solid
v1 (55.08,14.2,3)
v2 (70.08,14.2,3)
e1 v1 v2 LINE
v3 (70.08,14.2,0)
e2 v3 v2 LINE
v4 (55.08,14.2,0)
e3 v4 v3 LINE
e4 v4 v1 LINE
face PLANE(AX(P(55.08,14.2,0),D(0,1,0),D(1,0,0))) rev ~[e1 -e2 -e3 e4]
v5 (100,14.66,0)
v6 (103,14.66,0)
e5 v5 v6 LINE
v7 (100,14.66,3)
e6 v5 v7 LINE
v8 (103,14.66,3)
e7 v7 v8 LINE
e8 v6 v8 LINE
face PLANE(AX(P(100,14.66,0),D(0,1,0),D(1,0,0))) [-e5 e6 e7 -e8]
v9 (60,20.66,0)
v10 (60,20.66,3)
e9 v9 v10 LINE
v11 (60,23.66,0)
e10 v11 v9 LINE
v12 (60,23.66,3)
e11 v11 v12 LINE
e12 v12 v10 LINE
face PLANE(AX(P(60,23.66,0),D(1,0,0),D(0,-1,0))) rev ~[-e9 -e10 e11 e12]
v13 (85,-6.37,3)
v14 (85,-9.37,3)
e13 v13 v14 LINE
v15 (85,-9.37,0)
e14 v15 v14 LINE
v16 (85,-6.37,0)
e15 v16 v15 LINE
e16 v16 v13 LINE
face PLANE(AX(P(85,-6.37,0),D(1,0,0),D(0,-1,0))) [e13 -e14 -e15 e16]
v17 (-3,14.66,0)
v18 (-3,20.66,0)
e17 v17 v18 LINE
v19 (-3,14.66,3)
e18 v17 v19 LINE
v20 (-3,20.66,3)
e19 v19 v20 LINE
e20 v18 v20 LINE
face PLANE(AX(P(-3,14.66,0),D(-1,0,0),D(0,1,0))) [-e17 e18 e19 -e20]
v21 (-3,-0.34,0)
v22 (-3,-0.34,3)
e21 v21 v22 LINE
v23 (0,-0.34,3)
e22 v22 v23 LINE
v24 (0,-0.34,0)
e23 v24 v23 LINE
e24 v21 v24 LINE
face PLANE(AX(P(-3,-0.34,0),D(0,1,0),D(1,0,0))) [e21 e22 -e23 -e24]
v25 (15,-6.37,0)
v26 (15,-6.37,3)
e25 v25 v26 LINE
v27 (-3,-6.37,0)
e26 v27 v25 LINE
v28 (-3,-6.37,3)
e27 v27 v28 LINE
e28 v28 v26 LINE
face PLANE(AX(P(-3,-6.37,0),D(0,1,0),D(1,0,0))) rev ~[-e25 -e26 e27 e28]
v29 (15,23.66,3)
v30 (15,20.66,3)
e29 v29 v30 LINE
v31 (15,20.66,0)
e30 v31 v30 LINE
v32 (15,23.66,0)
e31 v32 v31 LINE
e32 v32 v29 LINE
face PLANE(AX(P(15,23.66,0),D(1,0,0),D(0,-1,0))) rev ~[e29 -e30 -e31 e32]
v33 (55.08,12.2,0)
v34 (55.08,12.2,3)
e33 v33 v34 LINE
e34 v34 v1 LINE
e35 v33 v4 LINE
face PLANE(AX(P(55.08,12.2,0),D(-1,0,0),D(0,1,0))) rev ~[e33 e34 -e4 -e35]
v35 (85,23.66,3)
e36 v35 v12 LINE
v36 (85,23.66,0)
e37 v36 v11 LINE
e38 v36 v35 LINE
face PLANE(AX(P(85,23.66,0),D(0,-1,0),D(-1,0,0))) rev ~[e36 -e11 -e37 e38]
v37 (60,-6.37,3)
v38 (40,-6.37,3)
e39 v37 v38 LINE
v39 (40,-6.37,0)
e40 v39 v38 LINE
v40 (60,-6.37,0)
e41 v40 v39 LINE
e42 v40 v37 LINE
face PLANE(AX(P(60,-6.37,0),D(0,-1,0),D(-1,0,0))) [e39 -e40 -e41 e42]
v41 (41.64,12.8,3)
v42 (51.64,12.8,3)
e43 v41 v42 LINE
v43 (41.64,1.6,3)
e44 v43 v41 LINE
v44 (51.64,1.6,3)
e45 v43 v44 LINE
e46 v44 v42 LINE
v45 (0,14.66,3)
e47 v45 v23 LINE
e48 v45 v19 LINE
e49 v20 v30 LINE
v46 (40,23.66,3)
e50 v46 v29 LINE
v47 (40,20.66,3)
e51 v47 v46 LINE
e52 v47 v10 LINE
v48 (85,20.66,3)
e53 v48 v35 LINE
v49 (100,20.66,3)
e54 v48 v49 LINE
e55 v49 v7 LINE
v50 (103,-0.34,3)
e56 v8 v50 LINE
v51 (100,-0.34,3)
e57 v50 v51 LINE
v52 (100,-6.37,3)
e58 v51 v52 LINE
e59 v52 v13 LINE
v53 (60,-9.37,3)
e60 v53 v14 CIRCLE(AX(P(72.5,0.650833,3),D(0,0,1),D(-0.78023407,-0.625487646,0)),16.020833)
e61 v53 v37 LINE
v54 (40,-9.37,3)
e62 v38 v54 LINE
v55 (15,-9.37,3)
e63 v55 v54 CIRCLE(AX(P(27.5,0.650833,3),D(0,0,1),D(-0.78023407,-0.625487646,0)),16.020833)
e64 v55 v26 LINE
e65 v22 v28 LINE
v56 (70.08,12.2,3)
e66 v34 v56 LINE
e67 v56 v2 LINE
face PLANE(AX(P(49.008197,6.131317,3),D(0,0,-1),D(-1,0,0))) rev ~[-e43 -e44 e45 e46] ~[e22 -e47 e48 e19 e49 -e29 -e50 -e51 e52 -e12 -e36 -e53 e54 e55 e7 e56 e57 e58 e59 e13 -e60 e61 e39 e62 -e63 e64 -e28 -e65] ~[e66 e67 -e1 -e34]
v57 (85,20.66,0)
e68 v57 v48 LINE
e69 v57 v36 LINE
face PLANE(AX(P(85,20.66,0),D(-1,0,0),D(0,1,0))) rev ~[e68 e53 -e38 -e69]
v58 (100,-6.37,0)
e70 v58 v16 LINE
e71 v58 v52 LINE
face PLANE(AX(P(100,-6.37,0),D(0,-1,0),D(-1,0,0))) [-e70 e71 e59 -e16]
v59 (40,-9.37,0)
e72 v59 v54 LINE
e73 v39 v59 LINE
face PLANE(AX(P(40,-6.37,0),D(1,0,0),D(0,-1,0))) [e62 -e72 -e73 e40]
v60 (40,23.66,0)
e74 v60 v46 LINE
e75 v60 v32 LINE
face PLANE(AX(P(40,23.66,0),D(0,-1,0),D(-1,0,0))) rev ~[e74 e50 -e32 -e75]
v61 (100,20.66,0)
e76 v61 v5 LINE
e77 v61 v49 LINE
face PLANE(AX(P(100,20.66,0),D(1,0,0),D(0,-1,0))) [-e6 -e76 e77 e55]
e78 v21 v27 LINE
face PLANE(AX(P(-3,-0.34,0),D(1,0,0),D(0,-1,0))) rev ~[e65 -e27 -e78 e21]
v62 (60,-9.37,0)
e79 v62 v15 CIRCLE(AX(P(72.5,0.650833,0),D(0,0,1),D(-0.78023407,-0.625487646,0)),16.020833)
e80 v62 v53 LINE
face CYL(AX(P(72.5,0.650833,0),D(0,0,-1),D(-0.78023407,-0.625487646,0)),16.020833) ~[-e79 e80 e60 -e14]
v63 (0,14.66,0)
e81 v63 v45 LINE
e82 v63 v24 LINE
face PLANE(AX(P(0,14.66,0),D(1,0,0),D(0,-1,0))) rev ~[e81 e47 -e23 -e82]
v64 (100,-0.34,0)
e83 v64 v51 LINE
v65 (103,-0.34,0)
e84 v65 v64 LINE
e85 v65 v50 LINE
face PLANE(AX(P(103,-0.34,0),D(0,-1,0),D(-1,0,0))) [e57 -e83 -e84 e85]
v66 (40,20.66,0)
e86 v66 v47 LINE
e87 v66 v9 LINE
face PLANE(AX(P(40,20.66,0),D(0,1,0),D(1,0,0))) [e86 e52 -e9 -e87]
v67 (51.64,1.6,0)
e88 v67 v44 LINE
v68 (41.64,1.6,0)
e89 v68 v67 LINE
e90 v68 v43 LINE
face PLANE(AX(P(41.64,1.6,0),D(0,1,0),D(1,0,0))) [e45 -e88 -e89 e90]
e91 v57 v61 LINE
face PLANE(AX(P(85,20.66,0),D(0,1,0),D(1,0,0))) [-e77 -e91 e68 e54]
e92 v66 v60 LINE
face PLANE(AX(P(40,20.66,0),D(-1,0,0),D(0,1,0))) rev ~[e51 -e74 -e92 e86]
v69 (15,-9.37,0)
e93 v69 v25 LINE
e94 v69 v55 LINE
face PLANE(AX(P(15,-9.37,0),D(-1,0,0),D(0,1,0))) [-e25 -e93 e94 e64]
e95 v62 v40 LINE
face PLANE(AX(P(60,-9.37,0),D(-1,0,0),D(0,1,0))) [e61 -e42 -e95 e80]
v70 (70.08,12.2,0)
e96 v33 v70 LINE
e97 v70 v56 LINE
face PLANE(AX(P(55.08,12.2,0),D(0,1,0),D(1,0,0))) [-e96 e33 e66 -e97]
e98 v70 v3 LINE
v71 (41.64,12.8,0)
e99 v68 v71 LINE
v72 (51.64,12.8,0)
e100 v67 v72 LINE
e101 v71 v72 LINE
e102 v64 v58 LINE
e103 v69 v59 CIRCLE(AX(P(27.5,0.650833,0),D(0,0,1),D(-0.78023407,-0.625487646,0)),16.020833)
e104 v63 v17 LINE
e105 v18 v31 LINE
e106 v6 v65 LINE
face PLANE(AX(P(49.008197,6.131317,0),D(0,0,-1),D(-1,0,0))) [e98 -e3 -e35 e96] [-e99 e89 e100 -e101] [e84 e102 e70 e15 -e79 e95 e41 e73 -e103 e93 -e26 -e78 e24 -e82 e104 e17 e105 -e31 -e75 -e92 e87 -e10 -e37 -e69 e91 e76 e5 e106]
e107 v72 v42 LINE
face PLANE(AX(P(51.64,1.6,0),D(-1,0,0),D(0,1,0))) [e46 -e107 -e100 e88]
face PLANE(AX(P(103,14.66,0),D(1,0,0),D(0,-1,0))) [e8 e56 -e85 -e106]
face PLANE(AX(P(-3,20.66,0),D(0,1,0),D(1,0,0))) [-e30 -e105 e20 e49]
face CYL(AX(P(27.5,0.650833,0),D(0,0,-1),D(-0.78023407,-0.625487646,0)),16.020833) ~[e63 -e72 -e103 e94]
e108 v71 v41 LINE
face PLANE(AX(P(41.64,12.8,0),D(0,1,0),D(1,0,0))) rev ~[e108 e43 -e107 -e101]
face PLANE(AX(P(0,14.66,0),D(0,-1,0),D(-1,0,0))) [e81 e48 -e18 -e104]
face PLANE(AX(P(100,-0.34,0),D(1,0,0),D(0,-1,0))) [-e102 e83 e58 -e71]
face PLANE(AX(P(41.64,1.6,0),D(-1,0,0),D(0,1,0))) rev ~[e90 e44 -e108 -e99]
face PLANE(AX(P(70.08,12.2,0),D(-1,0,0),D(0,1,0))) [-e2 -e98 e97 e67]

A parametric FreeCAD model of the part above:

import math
import FreeCAD as App
import Part
import Sketcher
from FreeCAD import Vector
Q = App.Units.Quantity

doc = App.newDocument("Part")
body = doc.addObject("PartDesign::Body", "Body")

# Sketch on XY plane
sketch1 = doc.addObject("Sketcher::SketchObject", "Sketch")
body.addObject(sketch1)
sketch1.AttachmentSupport = (doc.XY_Plane, [""])
sketch1.MapMode = "FlatFace"
sketch1.addGeometry([
    Part.LineSegment(Vector(40, -9.4, 0), Vector(40, -6.4, 0)),  # 0
    Part.LineSegment(Vector(40, -6.4, 0), Vector(60, -6.4, 0)),  # 1
    Part.LineSegment(Vector(60, -6.4, 0), Vector(60, -9.4, 0)),  # 2
    Part.ArcOfCircle(Part.Circle(Vector(72.5, 0.7, 0), Vector(0, 0, 1), 16), math.radians(-141), math.radians(-39)),  # 3
    Part.LineSegment(Vector(85, -9.4, 0), Vector(85, -6.4, 0)),  # 4
    Part.LineSegment(Vector(85, -6.4, 0), Vector(100, -6.4, 0)),  # 5
    Part.LineSegment(Vector(100, -6.4, 0), Vector(100, -0.3, 0)),  # 6
    Part.LineSegment(Vector(100, -0.3, 0), Vector(103, -0.3, 0)),  # 7
    Part.LineSegment(Vector(103, -0.3, 0), Vector(103, 14.7, 0)),  # 8
    Part.LineSegment(Vector(103, 14.7, 0), Vector(100, 14.7, 0)),  # 9
    Part.LineSegment(Vector(100, 14.7, 0), Vector(100, 20.7, 0)),  # 10
    Part.LineSegment(Vector(100, 20.7, 0), Vector(85, 20.7, 0)),  # 11
    Part.LineSegment(Vector(85, 20.7, 0), Vector(85, 23.7, 0)),  # 12
    Part.LineSegment(Vector(85, 23.7, 0), Vector(60, 23.7, 0)),  # 13
    Part.LineSegment(Vector(60, 23.7, 0), Vector(60, 20.7, 0)),  # 14
    Part.LineSegment(Vector(60, 20.7, 0), Vector(40, 20.7, 0)),  # 15
    Part.LineSegment(Vector(40, 20.7, 0), Vector(40, 23.7, 0)),  # 16
    Part.LineSegment(Vector(40, 23.7, 0), Vector(15, 23.7, 0)),  # 17
    Part.LineSegment(Vector(15, 23.7, 0), Vector(15, 20.7, 0)),  # 18
    Part.LineSegment(Vector(15, 20.7, 0), Vector(-3, 20.7, 0)),  # 19
    Part.LineSegment(Vector(-3, 20.7, 0), Vector(-3, 14.7, 0)),  # 20
    Part.LineSegment(Vector(-3, 14.7, 0), Vector(0, 14.7, 0)),  # 21
    Part.LineSegment(Vector(0, 14.7, 0), Vector(0, -0.3, 0)),  # 22
    Part.LineSegment(Vector(0, -0.3, 0), Vector(-3, -0.3, 0)),  # 23
    Part.LineSegment(Vector(-3, -0.3, 0), Vector(-3, -6.4, 0)),  # 24
    Part.LineSegment(Vector(-3, -6.4, 0), Vector(15, -6.4, 0)),  # 25
    Part.LineSegment(Vector(15, -6.4, 0), Vector(15, -9.4, 0)),  # 26
    Part.ArcOfCircle(Part.Circle(Vector(27.5, 0.7, 0), Vector(0, 0, 1), 16), math.radians(-141), math.radians(-39)),  # 27
    Part.LineSegment(Vector(41.6, 1.6, 0), Vector(41.6, 12.8, 0)),  # 28
    Part.LineSegment(Vector(41.6, 12.8, 0), Vector(51.6, 12.8, 0)),  # 29
    Part.LineSegment(Vector(51.6, 12.8, 0), Vector(51.6, 1.6, 0)),  # 30
    Part.LineSegment(Vector(51.6, 1.6, 0), Vector(41.6, 1.6, 0)),  # 31
    Part.LineSegment(Vector(55.1, 12.2, 0), Vector(55.1, 14.2, 0)),  # 32
    Part.LineSegment(Vector(55.1, 14.2, 0), Vector(70.1, 14.2, 0)),  # 33
    Part.LineSegment(Vector(70.1, 14.2, 0), Vector(70.1, 12.2, 0)),  # 34
    Part.LineSegment(Vector(70.1, 12.2, 0), Vector(55.1, 12.2, 0)),  # 35
], False)
sketch1.addConstraint([
    Sketcher.Constraint("Coincident", 0, 2, 1, 1),
    Sketcher.Constraint("Coincident", 1, 2, 2, 1),
    Sketcher.Constraint("Coincident", 2, 2, 3, 1),
    Sketcher.Constraint("Coincident", 3, 2, 4, 1),
    Sketcher.Constraint("Coincident", 4, 2, 5, 1),
    Sketcher.Constraint("Coincident", 5, 2, 6, 1),
    Sketcher.Constraint("Coincident", 6, 2, 7, 1),
    Sketcher.Constraint("Coincident", 7, 2, 8, 1),
    Sketcher.Constraint("Coincident", 8, 2, 9, 1),
    Sketcher.Constraint("Coincident", 9, 2, 10, 1),
    Sketcher.Constraint("Coincident", 10, 2, 11, 1),
    Sketcher.Constraint("Coincident", 11, 2, 12, 1),
    Sketcher.Constraint("Coincident", 12, 2, 13, 1),
    Sketcher.Constraint("Coincident", 13, 2, 14, 1),
    Sketcher.Constraint("Coincident", 14, 2, 15, 1),
    Sketcher.Constraint("Coincident", 15, 2, 16, 1),
    Sketcher.Constraint("Coincident", 16, 2, 17, 1),
    Sketcher.Constraint("Coincident", 17, 2, 18, 1),
    Sketcher.Constraint("Coincident", 18, 2, 19, 1),
    Sketcher.Constraint("Coincident", 19, 2, 20, 1),
    Sketcher.Constraint("Coincident", 20, 2, 21, 1),
    Sketcher.Constraint("Coincident", 21, 2, 22, 1),
    Sketcher.Constraint("Coincident", 22, 2, 23, 1),
    Sketcher.Constraint("Coincident", 23, 2, 24, 1),
    Sketcher.Constraint("Coincident", 24, 2, 25, 1),
    Sketcher.Constraint("Coincident", 25, 2, 26, 1),
    Sketcher.Constraint("Coincident", 26, 2, 27, 1),
    Sketcher.Constraint("Coincident", 27, 2, 0, 1),
    Sketcher.Constraint("Coincident", 28, 2, 29, 1),
    Sketcher.Constraint("Coincident", 29, 2, 30, 1),
    Sketcher.Constraint("Coincident", 30, 2, 31, 1),
    Sketcher.Constraint("Coincident", 31, 2, 28, 1),
    Sketcher.Constraint("Coincident", 32, 2, 33, 1),
    Sketcher.Constraint("Coincident", 33, 2, 34, 1),
    Sketcher.Constraint("Coincident", 34, 2, 35, 1),
    Sketcher.Constraint("Coincident", 35, 2, 32, 1),
    Sketcher.Constraint("Vertical", 0),
    Sketcher.Constraint("Horizontal", 1),
    Sketcher.Constraint("Vertical", 2),
    Sketcher.Constraint("Vertical", 4),
    Sketcher.Constraint("Horizontal", 5),
    Sketcher.Constraint("Vertical", 6),
    Sketcher.Constraint("Horizontal", 7),
    Sketcher.Constraint("Vertical", 8),
    Sketcher.Constraint("Horizontal", 9),
    Sketcher.Constraint("Vertical", 10),
    Sketcher.Constraint("Horizontal", 11),
    Sketcher.Constraint("Vertical", 12),
    Sketcher.Constraint("Horizontal", 13),
    Sketcher.Constraint("Vertical", 14),
    Sketcher.Constraint("Horizontal", 15),
    Sketcher.Constraint("Vertical", 16),
    Sketcher.Constraint("Horizontal", 17),
    Sketcher.Constraint("Vertical", 18),
    Sketcher.Constraint("Horizontal", 19),
    Sketcher.Constraint("Vertical", 20),
    Sketcher.Constraint("Horizontal", 21),
    Sketcher.Constraint("Vertical", 22),
    Sketcher.Constraint("Horizontal", 23),
    Sketcher.Constraint("Vertical", 24),
    Sketcher.Constraint("Horizontal", 25),
    Sketcher.Constraint("Vertical", 26),
    Sketcher.Constraint("Vertical", 28),
    Sketcher.Constraint("Horizontal", 29),
    Sketcher.Constraint("Vertical", 30),
    Sketcher.Constraint("Horizontal", 31),
    Sketcher.Constraint("Vertical", 32),
    Sketcher.Constraint("Horizontal", 33),
    Sketcher.Constraint("Vertical", 34),
    Sketcher.Constraint("Horizontal", 35),
    Sketcher.Constraint("Equal", 3, 27),
    Sketcher.Constraint("PointOnObject", 21, 2, -2),
    Sketcher.Constraint("Horizontal", 3, 3, 27, 3),
    Sketcher.Constraint("Horizontal", 2, 2, 3, 2),
    Sketcher.Constraint("Horizontal", 1, 2, 4, 2),
    Sketcher.Constraint("Horizontal", 11, 2, 14, 2),
    Sketcher.Constraint("Horizontal", 13, 2, 16, 2),
    Sketcher.Constraint("Horizontal", 15, 2, 18, 2),
    Sketcher.Constraint("Horizontal", 9, 2, 20, 2),
    Sketcher.Constraint("Horizontal", 7, 2, 22, 2),
    Sketcher.Constraint("Horizontal", 5, 2, 24, 2),
    Sketcher.Constraint("Horizontal", 3, 2, 26, 2),
    Sketcher.Constraint("Horizontal", 26, 2, 27, 2),
    Sketcher.Constraint("Vertical", 6, 2, 9, 2),
    Sketcher.Constraint("Vertical", 4, 2, 11, 2),
    Sketcher.Constraint("Vertical", 2, 2, 13, 2),
    Sketcher.Constraint("Vertical", 0, 2, 15, 2),
    Sketcher.Constraint("Vertical", 20, 2, 23, 2),
    Sketcher.Constraint("Vertical", 18, 2, 25, 2),
    Sketcher.Constraint("Equal", 9, 21),
    Sketcher.Constraint("Equal", 11, 33),
    Sketcher.Constraint("Equal", 23, 0),
    Sketcher.Constraint("Equal", 35, 8),
    Sketcher.Constraint("Equal", 4, 12),
    Sketcher.Constraint("DistanceX", 1, 1, 1, 2, Q("20 mm")),
    Sketcher.Constraint("DistanceX", 5, 1, 5, 2, Q("15 mm")),
    Sketcher.Constraint("DistanceX", 7, 1, 7, 2, Q("3 mm")),
    Sketcher.Constraint("DistanceX", 13, 2, 13, 1, Q("25 mm")),
    Sketcher.Constraint("DistanceX", 19, 2, 19, 1, Q("18 mm")),
    Sketcher.Constraint("DistanceX", 29, 1, 29, 2, Q("10 mm")),
    Sketcher.Constraint("DistanceY", 10, 1, 10, 2, Q("6 mm")),
    Sketcher.Constraint("DistanceY", 32, 1, 32, 2, Q("2 mm")),
    Sketcher.Constraint("DistanceY", 28, 1, 28, 2, Q("11.2 mm")),
    Sketcher.Constraint("DistanceY", 6, 1, 6, 2, Q("6.03 mm")),
    Sketcher.Constraint("DistanceY", -1, 1, 28, 2, Q("12.8 mm")),
    Sketcher.Constraint("DistanceY", -1, 1, 32, 2, Q("14.2 mm")),
    Sketcher.Constraint("DistanceY", 0, 2, -1, 1, Q("6.37 mm")),
    Sketcher.Constraint("DistanceX", -1, 1, 28, 2, Q("41.64 mm")),
    Sketcher.Constraint("DistanceX", -1, 1, 32, 2, Q("55.08 mm")),
    Sketcher.Constraint("Radius", 3, Q("16.020833 mm")),
])
pad1 = doc.addObject("PartDesign::Pad", "Pad")
body.addObject(pad1)
pad1.Profile = sketch1
pad1.Length = 3

doc.recompute()
